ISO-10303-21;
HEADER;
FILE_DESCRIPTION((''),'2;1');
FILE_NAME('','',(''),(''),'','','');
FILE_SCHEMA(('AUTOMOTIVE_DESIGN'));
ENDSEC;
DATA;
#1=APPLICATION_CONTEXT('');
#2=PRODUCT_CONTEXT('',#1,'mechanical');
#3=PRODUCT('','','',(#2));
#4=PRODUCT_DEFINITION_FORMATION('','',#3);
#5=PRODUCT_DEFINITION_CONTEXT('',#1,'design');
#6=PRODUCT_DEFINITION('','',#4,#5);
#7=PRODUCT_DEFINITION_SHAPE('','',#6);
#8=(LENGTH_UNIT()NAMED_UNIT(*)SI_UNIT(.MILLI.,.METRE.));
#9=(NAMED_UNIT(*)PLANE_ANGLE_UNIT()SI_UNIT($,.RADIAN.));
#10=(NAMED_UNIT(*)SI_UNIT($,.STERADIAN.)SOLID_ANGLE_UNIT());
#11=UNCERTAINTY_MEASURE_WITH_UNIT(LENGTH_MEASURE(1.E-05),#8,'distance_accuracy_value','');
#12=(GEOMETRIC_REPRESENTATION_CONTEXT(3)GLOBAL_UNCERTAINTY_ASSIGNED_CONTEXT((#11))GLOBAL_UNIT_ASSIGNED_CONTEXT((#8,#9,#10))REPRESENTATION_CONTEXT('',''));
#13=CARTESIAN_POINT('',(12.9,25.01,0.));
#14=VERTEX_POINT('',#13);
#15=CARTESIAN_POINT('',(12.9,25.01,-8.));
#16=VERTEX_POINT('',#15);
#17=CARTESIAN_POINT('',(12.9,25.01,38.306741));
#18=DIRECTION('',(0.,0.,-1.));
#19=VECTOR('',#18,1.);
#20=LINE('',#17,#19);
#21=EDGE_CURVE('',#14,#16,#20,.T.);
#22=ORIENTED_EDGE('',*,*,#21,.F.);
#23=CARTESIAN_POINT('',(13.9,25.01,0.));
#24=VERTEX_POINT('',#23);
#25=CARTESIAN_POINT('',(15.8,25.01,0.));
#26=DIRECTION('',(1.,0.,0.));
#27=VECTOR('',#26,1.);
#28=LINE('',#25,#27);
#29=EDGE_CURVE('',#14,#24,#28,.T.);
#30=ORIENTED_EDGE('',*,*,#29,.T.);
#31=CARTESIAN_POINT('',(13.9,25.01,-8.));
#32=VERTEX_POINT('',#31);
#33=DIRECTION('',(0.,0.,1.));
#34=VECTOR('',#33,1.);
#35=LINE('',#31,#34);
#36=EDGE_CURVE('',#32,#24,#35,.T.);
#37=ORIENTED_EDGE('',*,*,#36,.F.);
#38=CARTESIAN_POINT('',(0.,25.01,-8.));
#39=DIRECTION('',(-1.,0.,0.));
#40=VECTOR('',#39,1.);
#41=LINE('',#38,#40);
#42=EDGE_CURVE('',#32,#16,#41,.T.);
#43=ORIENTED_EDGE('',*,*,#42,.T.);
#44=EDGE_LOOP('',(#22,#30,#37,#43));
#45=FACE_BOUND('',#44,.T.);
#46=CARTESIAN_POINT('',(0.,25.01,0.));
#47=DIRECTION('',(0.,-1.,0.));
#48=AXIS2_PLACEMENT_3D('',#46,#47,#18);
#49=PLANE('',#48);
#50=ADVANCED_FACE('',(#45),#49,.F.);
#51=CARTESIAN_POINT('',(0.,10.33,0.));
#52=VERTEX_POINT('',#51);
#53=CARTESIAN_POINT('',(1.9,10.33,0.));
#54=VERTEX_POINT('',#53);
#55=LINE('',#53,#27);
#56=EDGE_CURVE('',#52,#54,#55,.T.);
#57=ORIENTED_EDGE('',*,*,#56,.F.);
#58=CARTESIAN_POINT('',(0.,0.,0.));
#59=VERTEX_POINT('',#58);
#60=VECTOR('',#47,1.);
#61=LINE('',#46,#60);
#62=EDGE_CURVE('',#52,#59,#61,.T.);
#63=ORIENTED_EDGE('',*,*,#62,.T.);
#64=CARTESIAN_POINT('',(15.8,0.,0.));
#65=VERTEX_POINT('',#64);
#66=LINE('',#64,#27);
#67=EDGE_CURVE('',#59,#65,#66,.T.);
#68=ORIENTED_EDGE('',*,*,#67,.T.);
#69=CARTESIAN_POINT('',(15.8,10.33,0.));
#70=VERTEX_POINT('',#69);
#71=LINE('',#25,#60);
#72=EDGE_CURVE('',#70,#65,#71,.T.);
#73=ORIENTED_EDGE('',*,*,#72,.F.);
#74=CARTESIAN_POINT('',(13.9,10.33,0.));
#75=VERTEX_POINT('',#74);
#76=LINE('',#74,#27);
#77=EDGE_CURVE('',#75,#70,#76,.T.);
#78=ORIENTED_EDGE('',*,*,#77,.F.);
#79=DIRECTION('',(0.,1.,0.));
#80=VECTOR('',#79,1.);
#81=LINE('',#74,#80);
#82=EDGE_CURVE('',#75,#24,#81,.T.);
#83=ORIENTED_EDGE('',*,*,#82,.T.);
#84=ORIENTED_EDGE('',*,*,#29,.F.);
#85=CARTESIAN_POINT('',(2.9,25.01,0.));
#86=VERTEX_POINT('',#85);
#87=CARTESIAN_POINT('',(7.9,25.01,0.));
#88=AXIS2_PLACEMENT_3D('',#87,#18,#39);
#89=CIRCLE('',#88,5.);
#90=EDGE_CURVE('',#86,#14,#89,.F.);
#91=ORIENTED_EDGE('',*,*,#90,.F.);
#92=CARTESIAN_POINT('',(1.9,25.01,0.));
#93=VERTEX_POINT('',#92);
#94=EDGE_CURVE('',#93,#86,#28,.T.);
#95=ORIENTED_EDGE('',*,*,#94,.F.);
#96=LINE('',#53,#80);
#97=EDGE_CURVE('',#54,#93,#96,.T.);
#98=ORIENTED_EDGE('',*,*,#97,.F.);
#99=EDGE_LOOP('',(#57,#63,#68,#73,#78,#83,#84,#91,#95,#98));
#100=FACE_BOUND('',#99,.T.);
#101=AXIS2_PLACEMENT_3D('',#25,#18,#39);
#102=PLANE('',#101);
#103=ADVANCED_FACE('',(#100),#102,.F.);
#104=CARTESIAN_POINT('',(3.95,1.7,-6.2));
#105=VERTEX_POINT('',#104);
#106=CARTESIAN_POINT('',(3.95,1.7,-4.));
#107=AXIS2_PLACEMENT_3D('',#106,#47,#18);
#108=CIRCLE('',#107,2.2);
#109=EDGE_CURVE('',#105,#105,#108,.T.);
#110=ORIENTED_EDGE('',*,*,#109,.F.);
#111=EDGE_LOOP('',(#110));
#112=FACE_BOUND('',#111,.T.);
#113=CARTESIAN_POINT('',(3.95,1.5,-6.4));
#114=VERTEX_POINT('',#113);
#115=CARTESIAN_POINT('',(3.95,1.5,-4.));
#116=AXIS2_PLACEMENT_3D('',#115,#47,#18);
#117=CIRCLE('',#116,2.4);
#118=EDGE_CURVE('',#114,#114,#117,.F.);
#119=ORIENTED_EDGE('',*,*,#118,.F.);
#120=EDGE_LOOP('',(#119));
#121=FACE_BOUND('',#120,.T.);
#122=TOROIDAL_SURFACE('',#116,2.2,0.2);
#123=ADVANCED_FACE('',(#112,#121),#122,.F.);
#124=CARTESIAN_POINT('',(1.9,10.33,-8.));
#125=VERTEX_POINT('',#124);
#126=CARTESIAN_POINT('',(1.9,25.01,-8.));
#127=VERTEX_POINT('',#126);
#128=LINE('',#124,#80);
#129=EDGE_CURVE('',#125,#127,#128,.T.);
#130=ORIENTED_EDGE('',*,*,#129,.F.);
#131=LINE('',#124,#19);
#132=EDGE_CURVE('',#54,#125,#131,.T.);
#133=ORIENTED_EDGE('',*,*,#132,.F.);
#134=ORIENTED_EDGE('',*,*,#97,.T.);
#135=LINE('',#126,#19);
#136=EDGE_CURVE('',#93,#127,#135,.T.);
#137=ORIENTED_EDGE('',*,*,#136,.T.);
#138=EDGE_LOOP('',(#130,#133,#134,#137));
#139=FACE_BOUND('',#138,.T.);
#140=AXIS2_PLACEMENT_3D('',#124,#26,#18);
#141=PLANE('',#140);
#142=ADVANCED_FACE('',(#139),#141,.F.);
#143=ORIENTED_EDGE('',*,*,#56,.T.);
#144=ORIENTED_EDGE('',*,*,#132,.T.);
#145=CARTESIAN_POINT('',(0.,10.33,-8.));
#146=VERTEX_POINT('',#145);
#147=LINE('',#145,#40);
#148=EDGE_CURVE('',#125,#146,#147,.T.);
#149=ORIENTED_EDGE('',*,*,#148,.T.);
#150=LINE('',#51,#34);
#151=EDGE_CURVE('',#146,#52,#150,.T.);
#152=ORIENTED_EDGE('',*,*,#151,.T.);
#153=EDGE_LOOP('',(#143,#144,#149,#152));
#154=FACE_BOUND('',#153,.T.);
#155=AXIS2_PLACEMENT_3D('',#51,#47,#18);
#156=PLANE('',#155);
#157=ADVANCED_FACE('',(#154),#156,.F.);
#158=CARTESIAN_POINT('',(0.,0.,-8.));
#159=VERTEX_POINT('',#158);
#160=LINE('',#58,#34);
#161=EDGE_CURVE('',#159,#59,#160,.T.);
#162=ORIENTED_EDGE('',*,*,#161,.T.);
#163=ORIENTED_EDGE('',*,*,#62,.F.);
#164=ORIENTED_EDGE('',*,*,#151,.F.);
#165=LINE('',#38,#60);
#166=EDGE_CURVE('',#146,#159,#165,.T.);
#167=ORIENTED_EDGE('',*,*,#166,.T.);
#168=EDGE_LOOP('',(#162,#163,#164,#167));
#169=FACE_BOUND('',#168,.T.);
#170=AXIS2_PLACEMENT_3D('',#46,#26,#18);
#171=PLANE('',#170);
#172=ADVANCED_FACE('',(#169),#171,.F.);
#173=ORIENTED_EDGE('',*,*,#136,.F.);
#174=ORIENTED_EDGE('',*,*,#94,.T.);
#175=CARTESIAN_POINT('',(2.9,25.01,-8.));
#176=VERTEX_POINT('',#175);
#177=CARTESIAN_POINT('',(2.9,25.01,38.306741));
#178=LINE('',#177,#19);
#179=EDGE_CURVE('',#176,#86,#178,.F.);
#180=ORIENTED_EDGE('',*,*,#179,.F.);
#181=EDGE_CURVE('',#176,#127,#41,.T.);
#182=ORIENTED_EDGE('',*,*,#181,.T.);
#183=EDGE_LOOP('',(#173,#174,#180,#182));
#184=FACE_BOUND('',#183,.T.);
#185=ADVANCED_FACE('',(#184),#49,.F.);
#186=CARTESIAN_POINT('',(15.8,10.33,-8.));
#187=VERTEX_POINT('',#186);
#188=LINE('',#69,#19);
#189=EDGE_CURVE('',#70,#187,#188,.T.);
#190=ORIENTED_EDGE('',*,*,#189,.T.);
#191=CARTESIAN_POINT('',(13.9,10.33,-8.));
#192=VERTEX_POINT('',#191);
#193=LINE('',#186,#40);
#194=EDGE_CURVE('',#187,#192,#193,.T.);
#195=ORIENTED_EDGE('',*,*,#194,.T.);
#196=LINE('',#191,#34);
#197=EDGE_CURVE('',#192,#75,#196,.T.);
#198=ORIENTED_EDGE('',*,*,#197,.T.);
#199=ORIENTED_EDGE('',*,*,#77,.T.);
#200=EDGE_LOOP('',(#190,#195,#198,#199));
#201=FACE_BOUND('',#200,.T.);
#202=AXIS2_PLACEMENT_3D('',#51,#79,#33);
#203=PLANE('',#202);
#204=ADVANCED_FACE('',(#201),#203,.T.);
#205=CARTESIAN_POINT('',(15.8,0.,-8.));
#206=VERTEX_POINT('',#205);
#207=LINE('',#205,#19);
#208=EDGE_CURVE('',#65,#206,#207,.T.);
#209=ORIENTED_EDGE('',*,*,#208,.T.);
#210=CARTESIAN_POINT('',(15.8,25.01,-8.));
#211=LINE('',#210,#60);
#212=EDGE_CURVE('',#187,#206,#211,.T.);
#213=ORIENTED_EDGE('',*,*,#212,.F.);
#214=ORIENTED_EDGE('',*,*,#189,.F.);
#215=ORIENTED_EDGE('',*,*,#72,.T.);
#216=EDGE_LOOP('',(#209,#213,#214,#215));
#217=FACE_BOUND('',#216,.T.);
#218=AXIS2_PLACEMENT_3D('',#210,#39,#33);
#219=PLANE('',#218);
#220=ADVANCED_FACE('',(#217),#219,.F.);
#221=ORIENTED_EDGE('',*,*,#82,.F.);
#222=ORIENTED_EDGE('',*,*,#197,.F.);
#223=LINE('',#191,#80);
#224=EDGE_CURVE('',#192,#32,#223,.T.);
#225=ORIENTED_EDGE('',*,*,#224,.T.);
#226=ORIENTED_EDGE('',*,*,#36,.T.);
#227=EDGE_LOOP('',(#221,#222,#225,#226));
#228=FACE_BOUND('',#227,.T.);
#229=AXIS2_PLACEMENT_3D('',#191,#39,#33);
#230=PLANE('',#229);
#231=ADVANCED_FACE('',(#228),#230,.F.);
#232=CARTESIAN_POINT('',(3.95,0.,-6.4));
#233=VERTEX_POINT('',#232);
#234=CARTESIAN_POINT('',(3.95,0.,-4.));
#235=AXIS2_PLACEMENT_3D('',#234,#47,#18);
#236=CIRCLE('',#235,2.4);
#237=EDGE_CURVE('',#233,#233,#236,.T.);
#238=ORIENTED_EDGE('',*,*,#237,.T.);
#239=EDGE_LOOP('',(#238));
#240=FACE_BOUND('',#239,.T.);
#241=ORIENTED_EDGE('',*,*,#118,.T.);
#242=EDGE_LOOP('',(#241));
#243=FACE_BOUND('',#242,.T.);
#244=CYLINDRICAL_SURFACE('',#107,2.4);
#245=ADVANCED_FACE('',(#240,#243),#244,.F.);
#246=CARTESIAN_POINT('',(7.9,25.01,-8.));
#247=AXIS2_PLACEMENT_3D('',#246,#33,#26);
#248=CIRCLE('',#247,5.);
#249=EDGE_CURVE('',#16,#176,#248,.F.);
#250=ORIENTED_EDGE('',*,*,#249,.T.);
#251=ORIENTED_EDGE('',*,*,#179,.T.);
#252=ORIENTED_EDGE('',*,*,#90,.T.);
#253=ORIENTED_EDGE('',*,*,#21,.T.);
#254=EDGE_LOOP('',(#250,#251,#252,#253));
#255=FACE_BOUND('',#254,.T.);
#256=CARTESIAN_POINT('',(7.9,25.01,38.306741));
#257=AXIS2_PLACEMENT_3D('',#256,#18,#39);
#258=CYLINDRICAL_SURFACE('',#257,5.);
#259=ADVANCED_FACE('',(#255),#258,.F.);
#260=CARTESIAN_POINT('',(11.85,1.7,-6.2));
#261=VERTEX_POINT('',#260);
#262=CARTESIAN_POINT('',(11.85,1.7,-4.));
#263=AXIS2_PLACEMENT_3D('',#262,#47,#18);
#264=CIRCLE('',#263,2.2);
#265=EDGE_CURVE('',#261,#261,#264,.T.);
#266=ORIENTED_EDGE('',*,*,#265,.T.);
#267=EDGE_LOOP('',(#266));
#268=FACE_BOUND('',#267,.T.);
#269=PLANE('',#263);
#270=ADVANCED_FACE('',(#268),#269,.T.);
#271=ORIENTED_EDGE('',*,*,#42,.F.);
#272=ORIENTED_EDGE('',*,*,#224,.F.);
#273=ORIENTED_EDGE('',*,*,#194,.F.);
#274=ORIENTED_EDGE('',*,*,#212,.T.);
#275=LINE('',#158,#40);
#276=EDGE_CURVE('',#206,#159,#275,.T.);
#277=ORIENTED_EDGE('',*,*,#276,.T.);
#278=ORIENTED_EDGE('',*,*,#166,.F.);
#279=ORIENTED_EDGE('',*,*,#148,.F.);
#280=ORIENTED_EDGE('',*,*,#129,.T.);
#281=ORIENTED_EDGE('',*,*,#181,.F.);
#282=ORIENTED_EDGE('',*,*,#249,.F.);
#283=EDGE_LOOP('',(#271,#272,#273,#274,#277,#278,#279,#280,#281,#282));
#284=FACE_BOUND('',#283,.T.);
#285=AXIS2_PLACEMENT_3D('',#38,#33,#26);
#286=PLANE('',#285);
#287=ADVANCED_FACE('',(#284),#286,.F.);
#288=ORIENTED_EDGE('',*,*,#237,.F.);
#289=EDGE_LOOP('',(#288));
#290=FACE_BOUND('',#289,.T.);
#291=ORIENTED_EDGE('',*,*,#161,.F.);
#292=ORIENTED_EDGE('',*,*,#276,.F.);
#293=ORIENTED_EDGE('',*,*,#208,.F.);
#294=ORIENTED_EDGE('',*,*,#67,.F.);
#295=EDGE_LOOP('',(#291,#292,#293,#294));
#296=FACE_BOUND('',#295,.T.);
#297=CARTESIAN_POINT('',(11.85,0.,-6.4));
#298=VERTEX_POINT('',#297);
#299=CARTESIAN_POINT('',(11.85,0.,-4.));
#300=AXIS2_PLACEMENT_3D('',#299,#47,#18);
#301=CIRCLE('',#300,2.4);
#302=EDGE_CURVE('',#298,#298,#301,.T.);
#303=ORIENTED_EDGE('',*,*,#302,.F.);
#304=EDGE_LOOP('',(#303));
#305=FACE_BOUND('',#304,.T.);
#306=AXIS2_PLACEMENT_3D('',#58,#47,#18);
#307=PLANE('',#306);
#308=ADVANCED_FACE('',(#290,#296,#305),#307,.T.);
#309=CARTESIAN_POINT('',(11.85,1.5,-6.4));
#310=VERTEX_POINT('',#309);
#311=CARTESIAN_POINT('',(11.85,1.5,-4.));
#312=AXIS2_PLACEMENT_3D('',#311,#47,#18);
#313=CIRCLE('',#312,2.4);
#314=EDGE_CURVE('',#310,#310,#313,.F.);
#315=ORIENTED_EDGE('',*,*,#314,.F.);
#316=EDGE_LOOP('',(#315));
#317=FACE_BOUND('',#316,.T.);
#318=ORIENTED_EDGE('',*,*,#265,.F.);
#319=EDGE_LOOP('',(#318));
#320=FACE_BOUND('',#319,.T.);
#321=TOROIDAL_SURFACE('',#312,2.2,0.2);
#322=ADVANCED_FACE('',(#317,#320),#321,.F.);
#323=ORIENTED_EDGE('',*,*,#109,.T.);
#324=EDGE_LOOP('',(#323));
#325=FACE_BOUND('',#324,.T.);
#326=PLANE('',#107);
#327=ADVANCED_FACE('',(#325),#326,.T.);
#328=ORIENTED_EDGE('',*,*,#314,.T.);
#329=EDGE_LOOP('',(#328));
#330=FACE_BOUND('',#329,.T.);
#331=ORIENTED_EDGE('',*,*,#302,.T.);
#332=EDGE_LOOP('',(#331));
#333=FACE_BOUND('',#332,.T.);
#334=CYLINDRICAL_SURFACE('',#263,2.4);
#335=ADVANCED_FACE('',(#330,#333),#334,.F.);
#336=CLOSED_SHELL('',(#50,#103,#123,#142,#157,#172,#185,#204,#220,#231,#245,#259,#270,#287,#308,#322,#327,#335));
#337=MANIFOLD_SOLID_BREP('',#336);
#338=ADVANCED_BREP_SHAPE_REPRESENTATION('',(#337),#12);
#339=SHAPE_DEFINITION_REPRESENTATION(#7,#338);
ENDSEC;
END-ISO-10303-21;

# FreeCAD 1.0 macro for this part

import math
import FreeCAD as App
import Part
import Sketcher
Q = App.Units.Quantity


def edges_at(feature, points):
    """Names of the edges that pass closest to the given points."""
    edges = feature.Shape.Edges
    near = lambda p: min(range(len(edges)), key=lambda i: edges[i].distToShape(Part.Vertex(*p))[0])
    return sorted({f"Edge{near(p) + 1}" for p in points})

doc = App.newDocument("Part")
body = doc.addObject("PartDesign::Body", "Body")

sketch1 = body.newObject("Sketcher::SketchObject", "Sketch")
sketch1.AttachmentSupport = (doc.getObject("XZ_Plane"), [""])
sketch1.MapMode = "FlatFace"
sketch1.addGeometry(Part.LineSegment(App.Vector(0, -8, 0), App.Vector(0, 0, 0)), False)
sketch1.addGeometry(Part.LineSegment(App.Vector(0, 0, 0), App.Vector(16, 0, 0)), False)
sketch1.addGeometry(Part.LineSegment(App.Vector(16, 0, 0), App.Vector(16, -8, 0)), False)
sketch1.addGeometry(Part.LineSegment(App.Vector(16, -8, 0), App.Vector(0, -8, 0)), False)
sketch1.addConstraint(Sketcher.Constraint("Coincident", 0, 2, 1, 1))
sketch1.addConstraint(Sketcher.Constraint("Coincident", 1, 2, 2, 1))
sketch1.addConstraint(Sketcher.Constraint("Coincident", 2, 2, 3, 1))
sketch1.addConstraint(Sketcher.Constraint("Coincident", 3, 2, 0, 1))
sketch1.addConstraint(Sketcher.Constraint("Vertical", 0))
sketch1.addConstraint(Sketcher.Constraint("Horizontal", 1))
sketch1.addConstraint(Sketcher.Constraint("Vertical", 2))
sketch1.addConstraint(Sketcher.Constraint("Horizontal", 3))
sketch1.addConstraint(Sketcher.Constraint("Coincident", 0, 2, -1, 1))
sketch1.addConstraint(Sketcher.Constraint("DistanceY", 0, 1, 0, 2, Q("8 mm")))
sketch1.addConstraint(Sketcher.Constraint("DistanceX", 1, 1, 1, 2, Q("15.8 mm")))
pad1 = body.newObject("PartDesign::Pad", "Pad")
pad1.Profile = sketch1
pad1.Length = 25.01
pad1.Reversed = True

sketch2 = body.newObject("Sketcher::SketchObject", "Sketch001")
sketch2.AttachmentSupport = (doc.getObject("XZ_Plane"), [""])
sketch2.MapMode = "FlatFace"
sketch2.addGeometry(Part.Circle(App.Vector(4, -4, 0), App.Vector(0, 0, 1), 2.4), False)
sketch2.addGeometry(Part.Circle(App.Vector(11.8, -4, 0), App.Vector(0, 0, 1), 2.4), False)
sketch2.addConstraint(Sketcher.Constraint("Equal", 0, 1))
sketch2.addConstraint(Sketcher.Constraint("Horizontal", 0, 3, 1, 3))
sketch2.addConstraint(Sketcher.Constraint("Diameter", 0, Q("4.8 mm")))
sketch2.addConstraint(Sketcher.Constraint("DistanceY", 0, 3, -1, 1, Q("4 mm")))
sketch2.addConstraint(Sketcher.Constraint("DistanceX", 0, 3, 1, 3, Q("7.9 mm")))
sketch2.addConstraint(Sketcher.Constraint("DistanceX", -1, 1, 0, 3, Q("3.95 mm")))
pocket1 = body.newObject("PartDesign::Pocket", "Pocket")
pocket1.Profile = sketch2
pocket1.Length = 1.7

sketch3 = body.newObject("Sketcher::SketchObject", "Sketch002")
sketch3.AttachmentSupport = (doc.getObject("XZ_Plane"), [""])
sketch3.MapMode = "FlatFace"
sketch3.AttachmentOffset = App.Placement(App.Vector(0, 0, -25.01), App.Rotation())
sketch3.addGeometry(Part.LineSegment(App.Vector(0, -8, 0), App.Vector(0, 0, 0)), False)
sketch3.addGeometry(Part.LineSegment(App.Vector(0, 0, 0), App.Vector(1.9, 0, 0)), False)
sketch3.addGeometry(Part.LineSegment(App.Vector(1.9, 0, 0), App.Vector(1.9, -8, 0)), False)
sketch3.addGeometry(Part.LineSegment(App.Vector(1.9, -8, 0), App.Vector(0, -8, 0)), False)
sketch3.addGeometry(Part.LineSegment(App.Vector(13.9, -8, 0), App.Vector(13.9, 0, 0)), False)
sketch3.addGeometry(Part.LineSegment(App.Vector(13.9, 0, 0), App.Vector(15.8, 0, 0)), False)
sketch3.addGeometry(Part.LineSegment(App.Vector(15.8, 0, 0), App.Vector(15.8, -8, 0)), False)
sketch3.addGeometry(Part.LineSegment(App.Vector(15.8, -8, 0), App.Vector(13.9, -8, 0)), False)
sketch3.addConstraint(Sketcher.Constraint("Coincident", 0, 2, 1, 1))
sketch3.addConstraint(Sketcher.Constraint("Coincident", 1, 2, 2, 1))
sketch3.addConstraint(Sketcher.Constraint("Coincident", 2, 2, 3, 1))
sketch3.addConstraint(Sketcher.Constraint("Coincident", 3, 2, 0, 1))
sketch3.addConstraint(Sketcher.Constraint("Coincident", 4, 2, 5, 1))
sketch3.addConstraint(Sketcher.Constraint("Coincident", 5, 2, 6, 1))
sketch3.addConstraint(Sketcher.Constraint("Coincident", 6, 2, 7, 1))
sketch3.addConstraint(Sketcher.Constraint("Coincident", 7, 2, 4, 1))
sketch3.addConstraint(Sketcher.Constraint("Vertical", 0))
sketch3.addConstraint(Sketcher.Constraint("Horizontal", 1))
sketch3.addConstraint(Sketcher.Constraint("Vertical", 2))
sketch3.addConstraint(Sketcher.Constraint("Horizontal", 3))
sketch3.addConstraint(Sketcher.Constraint("Vertical", 4))
sketch3.addConstraint(Sketcher.Constraint("Horizontal", 5))
sketch3.addConstraint(Sketcher.Constraint("Vertical", 6))
sketch3.addConstraint(Sketcher.Constraint("Horizontal", 7))
sketch3.addConstraint(Sketcher.Constraint("Coincident", 0, 2, -1, 1))
sketch3.addConstraint(Sketcher.Constraint("PointOnObject", 4, 2, -1))
sketch3.addConstraint(Sketcher.Constraint("Horizontal", 3, 2, 6, 2))
sketch3.addConstraint(Sketcher.Constraint("Equal", 3, 5))
sketch3.addConstraint(Sketcher.Constraint("DistanceY", 0, 1, 0, 2, Q("8 mm")))
sketch3.addConstraint(Sketcher.Constraint("DistanceX", 1, 1, 1, 2, Q("1.9 mm")))
sketch3.addConstraint(Sketcher.Constraint("DistanceX", 1, 2, 4, 2, Q("12 mm")))
pocket2 = body.newObject("PartDesign::Pocket", "Pocket001")
pocket2.Profile = sketch3
pocket2.Length = 14.68
pocket2.Reversed = True
doc.recompute()

fillet = body.newObject("PartDesign::Fillet", "Fillet")
fillet.Base = (pocket2, edges_at(pocket2, [(3.95, 1.7, -1.6), (11.85, 1.7, -1.6)]))
fillet.Radius = 0.2

sketch4 = body.newObject("Sketcher::SketchObject", "Sketch003")
sketch4.AttachmentSupport = (doc.getObject("XY_Plane"), [""])
sketch4.MapMode = "FlatFace"
sketch4.addGeometry(Part.ArcOfCircle(Part.Circle(App.Vector(8, 25, 0), App.Vector(0, 0, 1), 5), math.radians(180), math.radians(360)), False)
sketch4.addGeometry(Part.LineSegment(App.Vector(13, 25, 0), App.Vector(13, 224, 0)), False)
sketch4.addGeometry(Part.LineSegment(App.Vector(13, 224, 0), App.Vector(3, 224, 0)), False)
sketch4.addGeometry(Part.LineSegment(App.Vector(3, 224, 0), App.Vector(3, 25, 0)), False)
sketch4.addConstraint(Sketcher.Constraint("Tangent", 0, 2, 1, 1))
sketch4.addConstraint(Sketcher.Constraint("Coincident", 1, 2, 2, 1))
sketch4.addConstraint(Sketcher.Constraint("Coincident", 2, 2, 3, 1))
sketch4.addConstraint(Sketcher.Constraint("Tangent", 3, 2, 0, 1))
sketch4.addConstraint(Sketcher.Constraint("Vertical", 1))
sketch4.addConstraint(Sketcher.Constraint("Horizontal", 2))
sketch4.addConstraint(Sketcher.Constraint("Vertical", 3))
sketch4.addConstraint(Sketcher.Constraint("Radius", 0, Q("5 mm")))
sketch4.addConstraint(Sketcher.Constraint("DistanceX", -1, 1, 0, 3, Q("7.9 mm")))
sketch4.addConstraint(Sketcher.Constraint("DistanceY", -1, 1, 0, 3, Q("25.01 mm")))
sketch4.addConstraint(Sketcher.Constraint("DistanceY", 1, 1, 1, 2, Q("198.845384 mm")))
pocket3 = body.newObject("PartDesign::Pocket", "Pocket002")
pocket3.Profile = sketch4
pocket3.Type = "ThroughAll"
pocket3.Midplane = True

doc.recompute()
